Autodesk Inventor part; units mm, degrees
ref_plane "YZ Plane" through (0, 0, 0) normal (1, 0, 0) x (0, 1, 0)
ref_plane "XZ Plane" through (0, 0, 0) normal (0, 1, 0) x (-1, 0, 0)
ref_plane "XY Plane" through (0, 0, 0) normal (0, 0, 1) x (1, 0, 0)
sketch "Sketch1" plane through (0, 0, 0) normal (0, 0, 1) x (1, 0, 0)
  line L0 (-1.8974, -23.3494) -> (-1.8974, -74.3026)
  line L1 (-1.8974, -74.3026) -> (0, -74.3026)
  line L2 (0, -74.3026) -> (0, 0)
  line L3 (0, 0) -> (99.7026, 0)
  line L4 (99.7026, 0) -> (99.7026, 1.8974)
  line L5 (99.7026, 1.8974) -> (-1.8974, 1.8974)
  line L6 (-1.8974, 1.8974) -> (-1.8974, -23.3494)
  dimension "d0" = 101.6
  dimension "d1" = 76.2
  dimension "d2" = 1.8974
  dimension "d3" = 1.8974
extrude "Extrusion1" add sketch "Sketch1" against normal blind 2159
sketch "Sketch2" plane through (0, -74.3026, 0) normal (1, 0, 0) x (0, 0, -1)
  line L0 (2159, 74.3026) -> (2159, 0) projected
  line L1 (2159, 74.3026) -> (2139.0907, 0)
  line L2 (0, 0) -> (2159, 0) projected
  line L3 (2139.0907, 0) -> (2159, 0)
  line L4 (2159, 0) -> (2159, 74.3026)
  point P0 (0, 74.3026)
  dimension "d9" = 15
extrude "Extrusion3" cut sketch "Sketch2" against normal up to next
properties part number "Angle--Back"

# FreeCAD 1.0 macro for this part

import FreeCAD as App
import Part
import Sketcher

V = App.Vector
Q = App.Units.Quantity

doc = App.newDocument("Part")
params = doc.addObject("Spreadsheet::Sheet", "Params")
for row, (alias, value) in enumerate([
    ("sketch1_width", "4 in"),
    ("sketch1_height", "3 in"),
    ("pad1_length", "85 in"),
], start=1):
    params.set(f"A{row}", alias)
    params.set(f"B{row}", "=" + value)
    params.setAlias(f"B{row}", alias)

body = doc.addObject("PartDesign::Body", "Body")

sketch1 = body.newObject("Sketcher::SketchObject", "Sketch")
sketch1.AttachmentSupport = (doc.getObject("XY_Plane"), [""])
sketch1.MapMode = "FlatFace"
sketch1.addGeometry(Part.LineSegment(V(-1.8974, 1.8974, 0), V(-1.8974, -74.3026, 0)), False)
sketch1.addGeometry(Part.LineSegment(V(-1.8974, -74.3026, 0), V(0, -74.3026, 0)), False)
sketch1.addGeometry(Part.LineSegment(V(0, -74.3026, 0), V(0, 0, 0)), False)
sketch1.addGeometry(Part.LineSegment(V(0, 0, 0), V(99.7026, 0, 0)), False)
sketch1.addGeometry(Part.LineSegment(V(99.7026, 0, 0), V(99.7026, 1.8974, 0)), False)
sketch1.addGeometry(Part.LineSegment(V(99.7026, 1.8974, 0), V(-1.8974, 1.8974, 0)), False)
sketch1.addConstraint(Sketcher.Constraint("Coincident", 0, 2, 1, 1))
sketch1.addConstraint(Sketcher.Constraint("Coincident", 1, 2, 2, 1))
sketch1.addConstraint(Sketcher.Constraint("Coincident", 2, 2, 3, 1))
sketch1.addConstraint(Sketcher.Constraint("Coincident", 3, 2, 4, 1))
sketch1.addConstraint(Sketcher.Constraint("Coincident", 4, 2, 5, 1))
sketch1.addConstraint(Sketcher.Constraint("Coincident", 5, 2, 0, 1))
sketch1.addConstraint(Sketcher.Constraint("Vertical", 0))
sketch1.addConstraint(Sketcher.Constraint("Horizontal", 1))
sketch1.addConstraint(Sketcher.Constraint("Vertical", 2))
sketch1.addConstraint(Sketcher.Constraint("Horizontal", 3))
sketch1.addConstraint(Sketcher.Constraint("Vertical", 4))
sketch1.addConstraint(Sketcher.Constraint("Horizontal", 5))
sketch1.addConstraint(Sketcher.Constraint("Coincident", 2, 2, -1, 1))
sketch1.addConstraint(Sketcher.Constraint("Equal", 1, 4))
sketch1.addConstraint(Sketcher.Constraint("DistanceX", 5, 2, 5, 1, Q("4 in")))
sketch1.addConstraint(Sketcher.Constraint("DistanceY", 0, 2, 0, 1, Q("3 in")))
sketch1.addConstraint(Sketcher.Constraint("DistanceX", 1, 1, 1, 2, Q("0.0747 in")))
sketch1.setExpression("Constraints[14]", "Params.sketch1_width")
sketch1.setExpression("Constraints[15]", "Params.sketch1_height")
pad1 = body.newObject("PartDesign::Pad", "Pad")
pad1.Profile = sketch1
pad1.setExpression("Length", "Params.pad1_length")
pad1.Reversed = True

sketch2 = body.newObject("Sketcher::SketchObject", "Sketch001")
sketch2.AttachmentSupport = (doc.getObject("YZ_Plane"), [""])
sketch2.MapMode = "FlatFace"
sketch2.addGeometry(Part.LineSegment(V(-74.3026, -2159, 0), V(0, -2159, 0)), False)
sketch2.addGeometry(Part.LineSegment(V(0, -2159, 0), V(-74.3026, -2139.0907, 0)), False)
sketch2.addGeometry(Part.LineSegment(V(-74.3026, -2139.0907, 0), V(-74.3026, -2159, 0)), False)
sketch2.addConstraint(Sketcher.Constraint("Coincident", 0, 2, 1, 1))
sketch2.addConstraint(Sketcher.Constraint("Coincident", 1, 2, 2, 1))
sketch2.addConstraint(Sketcher.Constraint("Coincident", 2, 2, 0, 1))
sketch2.addConstraint(Sketcher.Constraint("Horizontal", 0))
sketch2.addConstraint(Sketcher.Constraint("Vertical", 2))
sketch2.addConstraint(Sketcher.Constraint("PointOnObject", 0, 2, -2))
sketch2.addConstraint(Sketcher.Constraint("DistanceY", 0, 2, -1, 1, Q("85 in")))
sketch2.addConstraint(Sketcher.Constraint("Angle", 1, Q("165 deg")))
sketch2.addConstraint(Sketcher.Constraint("DistanceX", 0, 1, 0, 2, Q("2.9253 in")))
pocket1 = body.newObject("PartDesign::Pocket", "Pocket")
pocket1.Profile = sketch2
pocket1.Type = "UpToFirst"

doc.recompute()
